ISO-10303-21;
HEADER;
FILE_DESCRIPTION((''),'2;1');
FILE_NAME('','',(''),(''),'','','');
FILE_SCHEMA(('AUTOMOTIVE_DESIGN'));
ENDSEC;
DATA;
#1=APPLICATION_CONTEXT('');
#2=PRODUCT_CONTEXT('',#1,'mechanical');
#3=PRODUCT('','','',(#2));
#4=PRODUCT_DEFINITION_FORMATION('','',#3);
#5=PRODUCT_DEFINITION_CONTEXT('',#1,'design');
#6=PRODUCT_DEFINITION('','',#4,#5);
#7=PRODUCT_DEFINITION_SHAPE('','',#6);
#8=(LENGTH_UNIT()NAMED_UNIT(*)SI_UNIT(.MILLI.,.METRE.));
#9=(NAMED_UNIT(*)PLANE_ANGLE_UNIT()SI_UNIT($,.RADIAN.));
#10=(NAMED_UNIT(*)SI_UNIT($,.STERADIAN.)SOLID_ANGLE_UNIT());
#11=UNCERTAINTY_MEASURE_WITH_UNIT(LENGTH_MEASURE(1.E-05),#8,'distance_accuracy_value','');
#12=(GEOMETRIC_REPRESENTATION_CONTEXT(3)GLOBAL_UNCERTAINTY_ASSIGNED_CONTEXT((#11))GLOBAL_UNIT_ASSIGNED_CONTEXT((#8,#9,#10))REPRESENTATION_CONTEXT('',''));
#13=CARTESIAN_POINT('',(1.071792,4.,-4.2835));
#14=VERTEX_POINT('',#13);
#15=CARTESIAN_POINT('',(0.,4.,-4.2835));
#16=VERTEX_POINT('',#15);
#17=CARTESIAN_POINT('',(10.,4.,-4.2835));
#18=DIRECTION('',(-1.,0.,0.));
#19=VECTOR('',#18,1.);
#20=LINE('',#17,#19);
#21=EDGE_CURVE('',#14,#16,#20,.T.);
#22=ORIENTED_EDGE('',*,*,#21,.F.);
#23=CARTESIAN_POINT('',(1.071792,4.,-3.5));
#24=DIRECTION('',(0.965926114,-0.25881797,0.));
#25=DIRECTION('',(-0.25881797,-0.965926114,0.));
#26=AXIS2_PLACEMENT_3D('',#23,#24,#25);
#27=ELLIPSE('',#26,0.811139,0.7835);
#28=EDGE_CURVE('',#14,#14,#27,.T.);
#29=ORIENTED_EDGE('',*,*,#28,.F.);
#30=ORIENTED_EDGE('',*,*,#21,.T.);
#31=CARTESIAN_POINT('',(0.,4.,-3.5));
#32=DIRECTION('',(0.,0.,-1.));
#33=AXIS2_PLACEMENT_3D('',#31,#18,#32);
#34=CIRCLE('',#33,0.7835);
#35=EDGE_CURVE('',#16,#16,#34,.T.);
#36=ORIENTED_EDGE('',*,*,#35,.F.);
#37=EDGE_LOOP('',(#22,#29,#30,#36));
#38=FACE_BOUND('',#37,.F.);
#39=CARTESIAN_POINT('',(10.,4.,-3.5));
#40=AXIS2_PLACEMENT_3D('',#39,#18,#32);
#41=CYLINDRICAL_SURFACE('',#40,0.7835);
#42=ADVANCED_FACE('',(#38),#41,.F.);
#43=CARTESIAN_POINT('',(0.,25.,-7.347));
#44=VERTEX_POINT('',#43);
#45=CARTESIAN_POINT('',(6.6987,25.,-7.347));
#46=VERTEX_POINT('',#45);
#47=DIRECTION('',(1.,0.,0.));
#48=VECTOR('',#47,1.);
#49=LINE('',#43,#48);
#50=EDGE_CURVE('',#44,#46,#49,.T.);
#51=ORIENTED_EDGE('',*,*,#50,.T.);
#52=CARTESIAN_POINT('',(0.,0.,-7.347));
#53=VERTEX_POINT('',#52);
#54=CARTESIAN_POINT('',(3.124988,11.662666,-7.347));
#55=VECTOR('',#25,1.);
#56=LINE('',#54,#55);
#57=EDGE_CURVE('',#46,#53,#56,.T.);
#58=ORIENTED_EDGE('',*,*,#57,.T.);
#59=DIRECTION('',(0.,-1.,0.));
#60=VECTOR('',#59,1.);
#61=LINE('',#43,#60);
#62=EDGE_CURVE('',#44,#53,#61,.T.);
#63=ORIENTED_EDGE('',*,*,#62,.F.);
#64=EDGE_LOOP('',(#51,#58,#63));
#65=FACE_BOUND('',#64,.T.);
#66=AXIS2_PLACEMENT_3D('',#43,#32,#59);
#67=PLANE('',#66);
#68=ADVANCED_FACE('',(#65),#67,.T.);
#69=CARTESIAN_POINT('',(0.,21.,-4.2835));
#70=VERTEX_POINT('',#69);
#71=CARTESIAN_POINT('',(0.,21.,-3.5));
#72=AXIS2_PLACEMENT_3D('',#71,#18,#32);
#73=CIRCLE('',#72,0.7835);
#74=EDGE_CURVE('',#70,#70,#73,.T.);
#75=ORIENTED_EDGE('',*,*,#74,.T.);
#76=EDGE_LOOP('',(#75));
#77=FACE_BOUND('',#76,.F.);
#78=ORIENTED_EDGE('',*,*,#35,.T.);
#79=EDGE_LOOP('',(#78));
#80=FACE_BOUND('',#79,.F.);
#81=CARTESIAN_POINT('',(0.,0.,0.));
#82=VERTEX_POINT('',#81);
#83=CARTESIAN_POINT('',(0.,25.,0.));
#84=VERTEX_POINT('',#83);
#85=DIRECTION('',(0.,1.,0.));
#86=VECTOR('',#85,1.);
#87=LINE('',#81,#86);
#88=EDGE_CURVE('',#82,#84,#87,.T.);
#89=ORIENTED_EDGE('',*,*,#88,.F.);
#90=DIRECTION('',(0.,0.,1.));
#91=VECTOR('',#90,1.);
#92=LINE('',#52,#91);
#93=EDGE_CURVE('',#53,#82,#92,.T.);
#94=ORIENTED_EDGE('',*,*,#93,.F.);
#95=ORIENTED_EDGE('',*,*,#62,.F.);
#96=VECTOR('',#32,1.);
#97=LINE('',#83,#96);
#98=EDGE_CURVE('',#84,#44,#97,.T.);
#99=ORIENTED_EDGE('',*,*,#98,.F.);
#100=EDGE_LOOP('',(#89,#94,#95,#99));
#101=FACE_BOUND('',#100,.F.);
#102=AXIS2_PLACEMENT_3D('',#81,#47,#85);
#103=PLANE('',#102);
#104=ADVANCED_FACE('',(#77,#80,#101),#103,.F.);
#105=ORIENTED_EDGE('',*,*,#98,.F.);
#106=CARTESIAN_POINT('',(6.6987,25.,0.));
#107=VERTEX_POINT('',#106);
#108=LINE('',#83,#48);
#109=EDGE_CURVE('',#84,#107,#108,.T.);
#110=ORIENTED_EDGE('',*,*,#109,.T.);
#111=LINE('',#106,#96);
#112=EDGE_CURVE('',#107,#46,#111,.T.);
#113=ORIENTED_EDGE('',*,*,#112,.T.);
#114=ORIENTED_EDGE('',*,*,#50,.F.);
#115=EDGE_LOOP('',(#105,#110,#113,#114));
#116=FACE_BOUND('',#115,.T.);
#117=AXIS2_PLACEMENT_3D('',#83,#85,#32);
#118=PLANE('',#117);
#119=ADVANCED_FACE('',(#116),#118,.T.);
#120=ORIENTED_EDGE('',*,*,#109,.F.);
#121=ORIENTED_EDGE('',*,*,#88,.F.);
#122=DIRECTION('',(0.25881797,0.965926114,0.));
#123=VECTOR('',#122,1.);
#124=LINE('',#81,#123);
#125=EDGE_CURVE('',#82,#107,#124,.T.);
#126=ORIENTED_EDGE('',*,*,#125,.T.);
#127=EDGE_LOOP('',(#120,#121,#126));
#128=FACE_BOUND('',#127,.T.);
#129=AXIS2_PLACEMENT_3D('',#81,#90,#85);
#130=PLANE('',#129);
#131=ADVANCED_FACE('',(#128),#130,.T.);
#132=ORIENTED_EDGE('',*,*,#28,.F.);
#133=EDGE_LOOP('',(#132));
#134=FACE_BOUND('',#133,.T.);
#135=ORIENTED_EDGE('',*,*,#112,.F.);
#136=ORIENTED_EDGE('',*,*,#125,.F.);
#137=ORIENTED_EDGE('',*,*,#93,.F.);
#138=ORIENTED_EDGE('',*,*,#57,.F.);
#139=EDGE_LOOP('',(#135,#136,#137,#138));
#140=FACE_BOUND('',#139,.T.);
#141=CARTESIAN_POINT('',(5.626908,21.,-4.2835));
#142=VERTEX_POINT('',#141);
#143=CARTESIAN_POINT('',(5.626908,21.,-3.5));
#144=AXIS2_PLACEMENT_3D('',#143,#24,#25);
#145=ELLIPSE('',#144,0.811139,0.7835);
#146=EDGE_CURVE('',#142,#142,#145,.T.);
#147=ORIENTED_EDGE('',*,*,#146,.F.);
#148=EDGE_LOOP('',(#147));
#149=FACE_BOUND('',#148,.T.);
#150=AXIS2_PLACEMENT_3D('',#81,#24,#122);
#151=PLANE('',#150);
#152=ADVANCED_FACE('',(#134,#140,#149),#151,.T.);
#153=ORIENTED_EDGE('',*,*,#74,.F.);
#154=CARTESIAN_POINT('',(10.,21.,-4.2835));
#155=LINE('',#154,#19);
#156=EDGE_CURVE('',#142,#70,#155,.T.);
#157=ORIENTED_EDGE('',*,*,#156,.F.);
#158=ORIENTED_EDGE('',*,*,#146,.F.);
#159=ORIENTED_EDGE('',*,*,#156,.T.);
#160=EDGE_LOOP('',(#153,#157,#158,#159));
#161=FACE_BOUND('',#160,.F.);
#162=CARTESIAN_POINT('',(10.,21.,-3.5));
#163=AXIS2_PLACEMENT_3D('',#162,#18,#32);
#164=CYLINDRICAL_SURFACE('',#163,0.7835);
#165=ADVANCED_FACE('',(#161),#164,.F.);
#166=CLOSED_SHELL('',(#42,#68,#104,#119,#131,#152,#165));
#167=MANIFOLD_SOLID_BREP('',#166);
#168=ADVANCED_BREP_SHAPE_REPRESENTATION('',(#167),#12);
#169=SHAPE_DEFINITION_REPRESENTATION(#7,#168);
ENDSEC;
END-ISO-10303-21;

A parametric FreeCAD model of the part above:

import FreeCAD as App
import Part
import Sketcher
from FreeCAD import Vector
Q = App.Units.Quantity


def add_polygon(sketch, points):
    """Adds a closed chain of lines whose ends are joined by coincident constraints."""
    first, n = sketch.GeometryCount, len(points)
    for a, b in zip(points, points[1:] + points[:1]):
        sketch.addGeometry(Part.LineSegment(App.Vector(*a, 0), App.Vector(*b, 0)), False)
    for i in range(n):
        sketch.addConstraint(Sketcher.Constraint("Coincident", first + i, 2, first + (i + 1) % n, 1))

doc = App.newDocument("Part")
params = doc.addObject("Spreadsheet::Sheet", "Params")
for row, (alias, value) in enumerate([
    ("sketch1_width", "25 mm"),
    ("pad1_length", "10 mm"),
    ("hole_diameter", "1.567 mm"),
    ("sketch3_width", "10 mm"),
    ("sketch3_height", "25 mm"),
    ("pocket1_length", "10 mm"),
], start=1):
    params.set(f"A{row}", alias)
    params.set(f"B{row}", "=" + value)
    params.setAlias(f"B{row}", alias)

body = doc.addObject("PartDesign::Body", "Body")

sketch1 = body.newObject("Sketcher::SketchObject", "Sketch")
sketch1.AttachmentSupport = (doc.getObject("YZ_Plane"), [""])
sketch1.MapMode = "FlatFace"
add_polygon(sketch1, [(25, 0), (0, 0), (0, -7), (25, -7)])
sketch1.addConstraint(Sketcher.Constraint("Horizontal", 0))
sketch1.addConstraint(Sketcher.Constraint("Vertical", 1))
sketch1.addConstraint(Sketcher.Constraint("Horizontal", 2))
sketch1.addConstraint(Sketcher.Constraint("Vertical", 3))
sketch1.addConstraint(Sketcher.Constraint("Coincident", 0, 2, -1, 1))
sketch1.addConstraint(Sketcher.Constraint("DistanceX", 0, 2, 0, 1, Q("25 mm")))
sketch1.addConstraint(Sketcher.Constraint("DistanceY", 1, 2, 1, 1, Q("7.347 mm")))
sketch1.setExpression("Constraints[9]", "Params.sketch1_width")
pad1 = body.newObject("PartDesign::Pad", "Pad")
pad1.Profile = sketch1
pad1.setExpression("Length", "Params.pad1_length")

sketch2 = body.newObject("Sketcher::SketchObject", "Sketch001")
sketch2.AttachmentSupport = (doc.getObject("YZ_Plane"), [""])
sketch2.MapMode = "FlatFace"
sketch2.AttachmentOffset = App.Placement(Vector(0, 0, 10), App.Rotation())
sketch2.addGeometry(Part.Circle(Vector(4, -3.5, 0), Vector(0, 0, 1), 0.8), False)
sketch2.addGeometry(Part.Circle(Vector(21, -3.5, 0), Vector(0, 0, 1), 0.8), False)
sketch2.addConstraint(Sketcher.Constraint("Equal", 0, 1))
sketch2.addConstraint(Sketcher.Constraint("Horizontal", 0, 3, 1, 3))
sketch2.addConstraint(Sketcher.Constraint("Diameter", 0, Q("1.567 mm")))
sketch2.addConstraint(Sketcher.Constraint("DistanceX", -1, 1, 0, 3, Q("4 mm")))
sketch2.addConstraint(Sketcher.Constraint("DistanceX", -1, 1, 1, 3, Q("21 mm")))
sketch2.addConstraint(Sketcher.Constraint("DistanceY", 0, 3, -1, 1, Q("3.5 mm")))
doc.recompute()
hole = body.newObject("PartDesign::Hole", "Hole")
hole.Profile = sketch2
hole.ThreadType = "None"
hole.setExpression("Diameter", "Params.hole_diameter")
hole.DepthType = "ThroughAll"

sketch3 = body.newObject("Sketcher::SketchObject", "Sketch002")
sketch3.AttachmentSupport = (doc.getObject("XY_Plane"), [""])
sketch3.MapMode = "FlatFace"
add_polygon(sketch3, [(6.7, 25), (0, 0), (10, 0), (10, 25)])
sketch3.addConstraint(Sketcher.Constraint("Horizontal", 1))
sketch3.addConstraint(Sketcher.Constraint("Vertical", 2))
sketch3.addConstraint(Sketcher.Constraint("Horizontal", 3))
sketch3.addConstraint(Sketcher.Constraint("Coincident", 0, 2, -1, 1))
sketch3.addConstraint(Sketcher.Constraint("DistanceX", 1, 1, 1, 2, Q("10 mm")))
sketch3.addConstraint(Sketcher.Constraint("DistanceY", 2, 1, 2, 2, Q("25 mm")))
sketch3.addConstraint(Sketcher.Constraint("Angle", 0, Q("-105 deg")))
sketch3.setExpression("Constraints[8]", "Params.sketch3_width")
sketch3.setExpression("Constraints[9]", "Params.sketch3_height")
pocket1 = body.newObject("PartDesign::Pocket", "Pocket")
pocket1.Profile = sketch3
pocket1.setExpression("Length", "Params.pocket1_length")

doc.recompute()
